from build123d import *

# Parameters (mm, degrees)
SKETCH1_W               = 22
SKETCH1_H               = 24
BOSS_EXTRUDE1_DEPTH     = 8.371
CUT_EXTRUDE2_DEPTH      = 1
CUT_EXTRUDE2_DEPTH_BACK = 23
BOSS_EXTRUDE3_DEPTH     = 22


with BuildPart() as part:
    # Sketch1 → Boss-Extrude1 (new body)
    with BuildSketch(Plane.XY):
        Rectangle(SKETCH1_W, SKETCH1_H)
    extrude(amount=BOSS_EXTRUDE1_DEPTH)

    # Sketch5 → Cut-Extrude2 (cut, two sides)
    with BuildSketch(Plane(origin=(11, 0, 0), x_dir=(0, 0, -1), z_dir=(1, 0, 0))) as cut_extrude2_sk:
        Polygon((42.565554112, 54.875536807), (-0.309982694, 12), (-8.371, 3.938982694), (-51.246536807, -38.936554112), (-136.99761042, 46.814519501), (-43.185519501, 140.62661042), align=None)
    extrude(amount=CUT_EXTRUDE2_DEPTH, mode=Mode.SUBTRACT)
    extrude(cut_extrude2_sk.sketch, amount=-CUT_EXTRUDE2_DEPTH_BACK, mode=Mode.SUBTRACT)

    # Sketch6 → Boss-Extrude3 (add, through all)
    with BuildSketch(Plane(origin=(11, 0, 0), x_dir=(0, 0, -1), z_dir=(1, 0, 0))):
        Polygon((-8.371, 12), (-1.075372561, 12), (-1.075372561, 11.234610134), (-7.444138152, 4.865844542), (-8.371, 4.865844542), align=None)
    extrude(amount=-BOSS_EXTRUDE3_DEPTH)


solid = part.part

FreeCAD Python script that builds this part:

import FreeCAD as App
import Part
import Sketcher

V = App.Vector
Q = App.Units.Quantity


def add_polygon(sketch, points):
    """Adds a closed chain of lines whose ends are joined by coincident constraints."""
    first, n = sketch.GeometryCount, len(points)
    for a, b in zip(points, points[1:] + points[:1]):
        sketch.addGeometry(Part.LineSegment(App.Vector(*a, 0), App.Vector(*b, 0)), False)
    for i in range(n):
        sketch.addConstraint(Sketcher.Constraint("Coincident", first + i, 2, first + (i + 1) % n, 1))

doc = App.newDocument("Part")
body = doc.addObject("PartDesign::Body", "Body")

sketch1 = doc.addObject("Sketcher::SketchObject", "Sketch")
body.addObject(sketch1)
sketch1.AttachmentSupport = (doc.XY_Plane, [""])
sketch1.MapMode = "FlatFace"
add_polygon(sketch1, [(-11, 12), (-11, -12), (11, -12), (11, 12)])
sketch1.addConstraint(Sketcher.Constraint("Vertical", 0))
sketch1.addConstraint(Sketcher.Constraint("Horizontal", 1))
sketch1.addConstraint(Sketcher.Constraint("Vertical", 2))
sketch1.addConstraint(Sketcher.Constraint("Horizontal", 3))
sketch1.addConstraint(Sketcher.Constraint("Symmetric", 0, 2, 2, 2, -1, 1))
sketch1.addConstraint(Sketcher.Constraint("DistanceX", 1, 1, 1, 2, Q("22 mm")))
sketch1.addConstraint(Sketcher.Constraint("DistanceY", 0, 2, 0, 1, Q("24 mm")))
pad1 = doc.addObject("PartDesign::Pad", "Pad")
body.addObject(pad1)
pad1.Profile = sketch1
pad1.Length = 8.371

sketch2 = doc.addObject("Sketcher::SketchObject", "Sketch001")
body.addObject(sketch2)
sketch2.AttachmentSupport = (doc.YZ_Plane, [""])
sketch2.MapMode = "FlatFace"
sketch2.AttachmentOffset = App.Placement(V(0, 0, 11), App.Rotation())
add_polygon(sketch2, [(12, 0), (55, -43), (141, 43), (47, 137), (-39, 51), (4, 8)])
sketch2.addConstraint(Sketcher.Constraint("Perpendicular", 0, 1))
sketch2.addConstraint(Sketcher.Constraint("Perpendicular", 1, 2))
sketch2.addConstraint(Sketcher.Constraint("Perpendicular", 2, 3))
sketch2.addConstraint(Sketcher.Constraint("Perpendicular", 3, 4))
sketch2.addConstraint(Sketcher.Constraint("Parallel", 4, 5))
sketch2.addConstraint(Sketcher.Constraint("Equal", 0, 4))
sketch2.addConstraint(Sketcher.Constraint("Angle", 0, Q("-45 deg")))
sketch2.addConstraint(Sketcher.Constraint("DistanceX", -1, 1, 5, 2, Q("12 mm")))
sketch2.addConstraint(Sketcher.Constraint("Distance", 5, Q("11.4 mm")))
sketch2.addConstraint(Sketcher.Constraint("DistanceY", -1, 1, 4, 2, Q("8.371 mm")))
sketch2.addConstraint(Sketcher.Constraint("Distance", 1, Q("121.270331 mm")))
sketch2.addConstraint(Sketcher.Constraint("Distance", 2, Q("132.670331 mm")))
pocket1 = doc.addObject("PartDesign::Pocket", "Pocket")
body.addObject(pocket1)
pocket1.Profile = sketch2
pocket1.Type = "ThroughAll"
pocket1.Midplane = True

sketch3 = doc.addObject("Sketcher::SketchObject", "Sketch002")
body.addObject(sketch3)
sketch3.AttachmentSupport = (doc.YZ_Plane, [""])
sketch3.MapMode = "FlatFace"
sketch3.AttachmentOffset = App.Placement(V(0, 0, 11), App.Rotation())
add_polygon(sketch3, [(12, 1.1), (12, 8.4), (4.9, 8.4), (4.9, 7.4), (11.2, 1.1)])
sketch3.addConstraint(Sketcher.Constraint("Vertical", 0))
sketch3.addConstraint(Sketcher.Constraint("Horizontal", 1))
sketch3.addConstraint(Sketcher.Constraint("Vertical", 2))
sketch3.addConstraint(Sketcher.Constraint("Horizontal", 4))
sketch3.addConstraint(Sketcher.Constraint("Angle", 3, Q("-45 deg")))
sketch3.addConstraint(Sketcher.Constraint("DistanceX", -1, 1, 0, 2, Q("12 mm")))
sketch3.addConstraint(Sketcher.Constraint("DistanceY", -1, 1, 0, 2, Q("8.371 mm")))
sketch3.addConstraint(Sketcher.Constraint("DistanceX", 4, 1, 4, 2, Q("0.76539 mm")))
sketch3.addConstraint(Sketcher.Constraint("DistanceY", 2, 2, 2, 1, Q("0.926862 mm")))
sketch3.addConstraint(Sketcher.Constraint("DistanceX", 1, 2, 1, 1, Q("7.134155 mm")))
pad2 = doc.addObject("PartDesign::Pad", "Pad001")
body.addObject(pad2)
pad2.Profile = sketch3
pad2.Length = 22
pad2.Reversed = True

doc.recompute()
